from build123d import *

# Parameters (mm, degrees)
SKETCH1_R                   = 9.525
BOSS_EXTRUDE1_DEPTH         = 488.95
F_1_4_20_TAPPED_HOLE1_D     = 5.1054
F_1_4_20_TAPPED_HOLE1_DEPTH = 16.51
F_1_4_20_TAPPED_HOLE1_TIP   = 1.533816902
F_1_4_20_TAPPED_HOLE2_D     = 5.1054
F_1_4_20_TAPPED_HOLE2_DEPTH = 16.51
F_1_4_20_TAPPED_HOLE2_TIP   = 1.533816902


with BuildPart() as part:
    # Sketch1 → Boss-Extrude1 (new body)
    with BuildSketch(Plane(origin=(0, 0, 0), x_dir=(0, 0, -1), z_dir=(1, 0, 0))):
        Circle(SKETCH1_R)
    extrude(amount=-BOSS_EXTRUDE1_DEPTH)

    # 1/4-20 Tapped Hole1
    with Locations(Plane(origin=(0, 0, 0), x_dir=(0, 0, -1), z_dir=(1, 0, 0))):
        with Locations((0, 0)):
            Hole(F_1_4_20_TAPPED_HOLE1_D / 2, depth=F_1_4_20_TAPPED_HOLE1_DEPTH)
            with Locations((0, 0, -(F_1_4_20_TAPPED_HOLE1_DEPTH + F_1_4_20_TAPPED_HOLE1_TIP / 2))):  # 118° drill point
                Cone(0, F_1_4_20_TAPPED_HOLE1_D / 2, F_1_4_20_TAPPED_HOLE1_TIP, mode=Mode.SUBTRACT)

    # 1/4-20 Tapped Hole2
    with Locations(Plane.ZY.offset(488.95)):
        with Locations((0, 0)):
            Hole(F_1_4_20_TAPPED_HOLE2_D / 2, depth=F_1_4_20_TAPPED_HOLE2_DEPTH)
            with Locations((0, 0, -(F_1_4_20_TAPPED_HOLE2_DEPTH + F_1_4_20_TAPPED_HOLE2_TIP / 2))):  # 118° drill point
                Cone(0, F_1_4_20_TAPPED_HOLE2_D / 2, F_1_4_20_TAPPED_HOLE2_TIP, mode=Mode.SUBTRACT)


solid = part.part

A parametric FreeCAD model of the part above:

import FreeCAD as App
import Part
import Sketcher
from FreeCAD import Vector
Q = App.Units.Quantity

doc = App.newDocument("Part")
params = doc.addObject("Spreadsheet::Sheet", "Params")
for row, (alias, value) in enumerate([
    ("sketch1_diameter", "0.75 in"),
    ("pad1_length", "19.25 in"),
    ("sketch2_diameter", "0.201 in"),
    ("hole_diameter", "0.201 in"),
    ("hole_depth", "0.65 in"),
    ("sketch3_diameter", "0.201 in"),
    ("hole2_diameter", "0.201 in"),
    ("hole2_depth", "0.65 in"),
], start=1):
    params.set(f"A{row}", alias)
    params.set(f"B{row}", "=" + value)
    params.setAlias(f"B{row}", alias)

body = doc.addObject("PartDesign::Body", "Body")

# Sketch on YZ plane
sketch1 = doc.addObject("Sketcher::SketchObject", "Sketch")
body.addObject(sketch1)
sketch1.AttachmentSupport = (doc.YZ_Plane, [""])
sketch1.MapMode = "FlatFace"
sketch1.addGeometry(Part.Circle(Vector(0, 0, 0), Vector(0, 0, 1), 10), False)
sketch1.addConstraint([
    Sketcher.Constraint("Coincident", 0, 3, -1, 1),
    Sketcher.Constraint("Diameter", 0, Q("0.75 in")),
])
sketch1.setExpression("Constraints[1]", "Params.sketch1_diameter")
pad1 = doc.addObject("PartDesign::Pad", "Pad")
body.addObject(pad1)
pad1.Profile = sketch1
pad1.setExpression("Length", "Params.pad1_length")
pad1.Reversed = True

# Sketch on YZ plane
sketch2 = doc.addObject("Sketcher::SketchObject", "Sketch001")
body.addObject(sketch2)
sketch2.AttachmentSupport = (doc.YZ_Plane, [""])
sketch2.MapMode = "FlatFace"
sketch2.addGeometry(Part.Circle(Vector(0, 0, 0), Vector(0, 0, 1), 2.6), False)
sketch2.addConstraint([
    Sketcher.Constraint("Coincident", 0, 3, -1, 1),
    Sketcher.Constraint("Diameter", 0, Q("0.201 in")),
])
sketch2.setExpression("Constraints[1]", "Params.sketch2_diameter")
doc.recompute()
hole = doc.addObject("PartDesign::Hole", "Hole")
body.addObject(hole)
hole.Profile = sketch2
hole.ThreadType = "None"
hole.setExpression("Diameter", "Params.hole_diameter")
hole.DepthType = "Dimension"
hole.setExpression("Depth", "Params.hole_depth")
hole.DrillPoint = "Angled"
hole.DrillPointAngle = 118

# Sketch on YZ plane
sketch3 = doc.addObject("Sketcher::SketchObject", "Sketch002")
body.addObject(sketch3)
sketch3.AttachmentSupport = (doc.YZ_Plane, [""])
sketch3.MapMode = "FlatFace"
sketch3.AttachmentOffset = App.Placement(Vector(0, 0, -19.25 * 25.4), App.Rotation())
sketch3.addGeometry(Part.Circle(Vector(0, 0, 0), Vector(0, 0, 1), 2.6), False)
sketch3.addConstraint([
    Sketcher.Constraint("Coincident", 0, 3, -1, 1),
    Sketcher.Constraint("Diameter", 0, Q("0.201 in")),
])
sketch3.setExpression("Constraints[1]", "Params.sketch3_diameter")
doc.recompute()
hole2 = doc.addObject("PartDesign::Hole", "Hole001")
body.addObject(hole2)
hole2.Profile = sketch3
hole2.ThreadType = "None"
hole2.setExpression("Diameter", "Params.hole2_diameter")
hole2.DepthType = "Dimension"
hole2.setExpression("Depth", "Params.hole2_depth")
hole2.DrillPoint = "Angled"
hole2.DrillPointAngle = 118
hole2.Reversed = True

doc.recompute()
